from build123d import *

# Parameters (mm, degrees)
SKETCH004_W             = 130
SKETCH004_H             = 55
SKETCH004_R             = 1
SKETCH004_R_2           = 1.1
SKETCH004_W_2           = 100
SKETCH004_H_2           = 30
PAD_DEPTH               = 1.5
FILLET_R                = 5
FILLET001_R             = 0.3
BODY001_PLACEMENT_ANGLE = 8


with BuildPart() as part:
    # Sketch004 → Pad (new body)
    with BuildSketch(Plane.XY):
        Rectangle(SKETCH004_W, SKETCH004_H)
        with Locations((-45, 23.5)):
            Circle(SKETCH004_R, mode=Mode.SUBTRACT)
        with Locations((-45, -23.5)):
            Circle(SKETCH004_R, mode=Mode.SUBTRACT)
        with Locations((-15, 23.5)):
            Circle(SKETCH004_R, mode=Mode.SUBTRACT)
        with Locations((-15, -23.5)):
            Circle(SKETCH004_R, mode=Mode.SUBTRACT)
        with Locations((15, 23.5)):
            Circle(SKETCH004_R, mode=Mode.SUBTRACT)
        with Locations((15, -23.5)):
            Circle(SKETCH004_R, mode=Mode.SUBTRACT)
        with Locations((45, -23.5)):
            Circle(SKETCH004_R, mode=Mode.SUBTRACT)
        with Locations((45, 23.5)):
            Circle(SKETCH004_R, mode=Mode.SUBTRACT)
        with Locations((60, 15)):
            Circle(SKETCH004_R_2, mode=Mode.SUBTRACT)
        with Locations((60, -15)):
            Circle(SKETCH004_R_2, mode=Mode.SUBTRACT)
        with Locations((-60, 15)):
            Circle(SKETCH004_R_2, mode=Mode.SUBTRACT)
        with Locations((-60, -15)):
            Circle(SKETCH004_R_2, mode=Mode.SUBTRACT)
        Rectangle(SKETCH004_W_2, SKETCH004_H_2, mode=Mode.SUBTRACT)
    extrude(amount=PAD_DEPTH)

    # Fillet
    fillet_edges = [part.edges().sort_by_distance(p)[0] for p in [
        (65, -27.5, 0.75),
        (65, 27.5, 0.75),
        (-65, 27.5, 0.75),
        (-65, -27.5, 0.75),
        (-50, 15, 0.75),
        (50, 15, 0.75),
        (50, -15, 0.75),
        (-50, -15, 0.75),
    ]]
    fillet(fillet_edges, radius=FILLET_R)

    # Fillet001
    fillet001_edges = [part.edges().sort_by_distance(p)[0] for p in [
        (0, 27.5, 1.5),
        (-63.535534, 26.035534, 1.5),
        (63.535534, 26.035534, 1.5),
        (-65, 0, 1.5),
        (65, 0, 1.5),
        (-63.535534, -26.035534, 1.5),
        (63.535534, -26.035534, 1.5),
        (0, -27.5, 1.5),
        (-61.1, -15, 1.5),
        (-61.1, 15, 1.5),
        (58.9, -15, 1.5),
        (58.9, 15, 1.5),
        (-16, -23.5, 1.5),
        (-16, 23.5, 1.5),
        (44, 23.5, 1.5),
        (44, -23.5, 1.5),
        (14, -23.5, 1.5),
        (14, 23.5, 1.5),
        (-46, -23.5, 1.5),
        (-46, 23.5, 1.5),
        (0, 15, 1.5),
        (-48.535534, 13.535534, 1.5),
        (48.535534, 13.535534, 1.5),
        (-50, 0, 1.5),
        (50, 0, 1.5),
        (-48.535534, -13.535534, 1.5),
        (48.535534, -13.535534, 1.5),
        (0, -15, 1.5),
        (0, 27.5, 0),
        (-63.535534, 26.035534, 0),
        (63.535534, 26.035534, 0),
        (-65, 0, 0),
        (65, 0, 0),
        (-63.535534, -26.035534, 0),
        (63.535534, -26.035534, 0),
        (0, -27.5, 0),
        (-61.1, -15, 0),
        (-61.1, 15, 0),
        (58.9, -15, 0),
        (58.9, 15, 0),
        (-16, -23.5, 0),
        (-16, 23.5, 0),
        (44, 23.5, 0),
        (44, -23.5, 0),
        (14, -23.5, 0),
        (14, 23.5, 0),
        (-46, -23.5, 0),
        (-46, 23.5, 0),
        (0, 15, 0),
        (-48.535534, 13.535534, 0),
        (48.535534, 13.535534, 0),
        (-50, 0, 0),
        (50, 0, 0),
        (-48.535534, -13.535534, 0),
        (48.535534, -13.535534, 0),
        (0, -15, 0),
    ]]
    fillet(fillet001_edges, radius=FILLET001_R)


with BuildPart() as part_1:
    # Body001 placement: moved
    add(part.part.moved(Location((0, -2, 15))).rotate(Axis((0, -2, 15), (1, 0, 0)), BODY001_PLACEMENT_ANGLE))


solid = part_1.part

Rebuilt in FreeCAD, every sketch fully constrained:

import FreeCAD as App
import Part
import Sketcher
from FreeCAD import Vector
Q = App.Units.Quantity


def edges_at(feature, points):
    """Names of the edges that pass closest to the given points."""
    edges = feature.Shape.Edges
    near = lambda p: min(range(len(edges)), key=lambda i: edges[i].distToShape(Part.Vertex(*p))[0])
    return sorted({f"Edge{near(p) + 1}" for p in points})


def add_polygon(sketch, points):
    """Adds a closed chain of lines whose ends are joined by coincident constraints."""
    first, n = sketch.GeometryCount, len(points)
    for a, b in zip(points, points[1:] + points[:1]):
        sketch.addGeometry(Part.LineSegment(App.Vector(*a, 0), App.Vector(*b, 0)), False)
    for i in range(n):
        sketch.addConstraint(Sketcher.Constraint("Coincident", first + i, 2, first + (i + 1) % n, 1))

doc = App.newDocument("Part")
body = doc.addObject("PartDesign::Body", "Body")

# Sketch on XY plane
sketch1 = doc.addObject("Sketcher::SketchObject", "Sketch")
body.addObject(sketch1)
sketch1.AttachmentSupport = (doc.XY_Plane, [""])
sketch1.MapMode = "FlatFace"
add_polygon(sketch1, [(-65, 27.5), (-65, -27.5), (65, -27.5), (65, 27.5)])  # lines 0-3
sketch1.addGeometry(Part.Circle(Vector(-45, -23.5, 0), Vector(0, 0, 1), 1), False)  # 4
sketch1.addGeometry(Part.Circle(Vector(-60, -15, 0), Vector(0, 0, 1), 1.1), False)  # 5
sketch1.addGeometry(Part.Circle(Vector(-15, -23.5, 0), Vector(0, 0, 1), 1), False)  # 6
sketch1.addGeometry(Part.Circle(Vector(15, -23.5, 0), Vector(0, 0, 1), 1), False)  # 7
sketch1.addGeometry(Part.Circle(Vector(45, -23.5, 0), Vector(0, 0, 1), 1), False)  # 8
sketch1.addGeometry(Part.Circle(Vector(60, -15, 0), Vector(0, 0, 1), 1.1), False)  # 9
add_polygon(sketch1, [(50, -15), (-50, -15), (-50, 15), (50, 15)])  # lines 10-13
sketch1.addGeometry(Part.Circle(Vector(-60, 15, 0), Vector(0, 0, 1), 1.1), False)  # 14
sketch1.addGeometry(Part.Circle(Vector(-45, 23.5, 0), Vector(0, 0, 1), 1), False)  # 15
sketch1.addGeometry(Part.Circle(Vector(-15, 23.5, 0), Vector(0, 0, 1), 1), False)  # 16
sketch1.addGeometry(Part.Circle(Vector(15, 23.5, 0), Vector(0, 0, 1), 1), False)  # 17
sketch1.addGeometry(Part.Circle(Vector(60, 15, 0), Vector(0, 0, 1), 1.1), False)  # 18
sketch1.addGeometry(Part.Circle(Vector(45, 23.5, 0), Vector(0, 0, 1), 1), False)  # 19
sketch1.addConstraint([
    Sketcher.Constraint("Vertical", 0),
    Sketcher.Constraint("Horizontal", 1),
    Sketcher.Constraint("Vertical", 2),
    Sketcher.Constraint("Horizontal", 3),
    Sketcher.Constraint("Horizontal", 10),
    Sketcher.Constraint("Vertical", 11),
    Sketcher.Constraint("Horizontal", 12),
    Sketcher.Constraint("Vertical", 13),
    Sketcher.Constraint("Equal", 4, 6),
    Sketcher.Constraint("Equal", 6, 7),
    Sketcher.Constraint("Equal", 7, 8),
    Sketcher.Constraint("Equal", 5, 9),
    Sketcher.Constraint("Equal", 9, 14),
    Sketcher.Constraint("Equal", 8, 15),
    Sketcher.Constraint("Equal", 15, 16),
    Sketcher.Constraint("Equal", 16, 17),
    Sketcher.Constraint("Equal", 14, 18),
    Sketcher.Constraint("Equal", 17, 19),
    Sketcher.Constraint("Symmetric", 9, 3, 14, 3, -1, 1),
    Sketcher.Constraint("Symmetric", 8, 3, 15, 3, -1, 1),
    Sketcher.Constraint("Symmetric", 7, 3, 16, 3, -1, 1),
    Sketcher.Constraint("Symmetric", 6, 3, 17, 3, -1, 1),
    Sketcher.Constraint("Symmetric", 5, 3, 18, 3, -1, 1),
    Sketcher.Constraint("Symmetric", 4, 3, 19, 3, -1, 1),
    Sketcher.Constraint("Symmetric", 0, 2, 2, 2, -1, 1),
    Sketcher.Constraint("Symmetric", 10, 2, 12, 2, -1, 1),
    Sketcher.Constraint("Symmetric", 6, 3, 7, 3, -2),
    Sketcher.Constraint("Symmetric", 4, 3, 8, 3, -2),
    Sketcher.Constraint("Symmetric", 5, 3, 9, 3, -2),
    Sketcher.Constraint("Horizontal", 4, 3, 6, 3),
    Sketcher.Constraint("Horizontal", 9, 3, 10, 2),
    Sketcher.Constraint("Diameter", 4, Q("2 mm")),
    Sketcher.Constraint("Diameter", 5, Q("2.2 mm")),
    Sketcher.Constraint("DistanceX", 1, 1, 1, 2, Q("130 mm")),
    Sketcher.Constraint("DistanceX", 10, 2, 10, 1, Q("100 mm")),
    Sketcher.Constraint("DistanceY", 0, 2, 0, 1, Q("55 mm")),
    Sketcher.Constraint("DistanceY", 11, 1, 11, 2, Q("30 mm")),
    Sketcher.Constraint("DistanceX", 4, 3, -1, 1, Q("45 mm")),
    Sketcher.Constraint("DistanceX", 5, 3, -1, 1, Q("60 mm")),
    Sketcher.Constraint("DistanceX", 6, 3, -1, 1, Q("15 mm")),
    Sketcher.Constraint("DistanceY", 4, 3, 15, 3, Q("47 mm")),
])
pad1 = doc.addObject("PartDesign::Pad", "Pad")
body.addObject(pad1)
pad1.Profile = sketch1
pad1.Length = 1.5
doc.recompute()

fillet = doc.addObject("PartDesign::Fillet", "Fillet")
body.addObject(fillet)
fillet.Base = (pad1, edges_at(pad1, [
    (65, -27.5, 0.75),
    (65, 27.5, 0.75),
    (-65, 27.5, 0.75),
    (-65, -27.5, 0.75),
    (-50, 15, 0.75),
    (50, 15, 0.75),
    (50, -15, 0.75),
    (-50, -15, 0.75),
]))
fillet.Radius = 5
doc.recompute()

fillet2 = doc.addObject("PartDesign::Fillet", "Fillet001")
body.addObject(fillet2)
fillet2.Base = (fillet, edges_at(fillet, [
    (0, 27.5, 1.5),
    (-63.536, 26.036, 1.5),
    (63.536, 26.036, 1.5),
    (-65, 0, 1.5),
    (65, 0, 1.5),
    (-63.536, -26.036, 1.5),
    (63.536, -26.036, 1.5),
    (0, -27.5, 1.5),
    (-61.1, -15, 1.5),
    (-61.1, 15, 1.5),
    (58.9, -15, 1.5),
    (58.9, 15, 1.5),
    (-16, -23.5, 1.5),
    (-16, 23.5, 1.5),
    (44, 23.5, 1.5),
    (44, -23.5, 1.5),
    (14, -23.5, 1.5),
    (14, 23.5, 1.5),
    (-46, -23.5, 1.5),
    (-46, 23.5, 1.5),
    (0, 15, 1.5),
    (-48.536, 13.536, 1.5),
    (48.536, 13.536, 1.5),
    (-50, 0, 1.5),
    (50, 0, 1.5),
    (-48.536, -13.536, 1.5),
    (48.536, -13.536, 1.5),
    (0, -15, 1.5),
    (0, 27.5, 0),
    (-63.536, 26.036, 0),
    (63.536, 26.036, 0),
    (-65, 0, 0),
    (65, 0, 0),
    (-63.536, -26.036, 0),
    (63.536, -26.036, 0),
    (0, -27.5, 0),
    (-61.1, -15, 0),
    (-61.1, 15, 0),
    (58.9, -15, 0),
    (58.9, 15, 0),
    (-16, -23.5, 0),
    (-16, 23.5, 0),
    (44, 23.5, 0),
    (44, -23.5, 0),
    (14, -23.5, 0),
    (14, 23.5, 0),
    (-46, -23.5, 0),
    (-46, 23.5, 0),
    (0, 15, 0),
    (-48.536, 13.536, 0),
    (48.536, 13.536, 0),
    (-50, 0, 0),
    (50, 0, 0),
    (-48.536, -13.536, 0),
    (48.536, -13.536, 0),
    (0, -15, 0),
]))
fillet2.Radius = 0.3
body2 = doc.addObject("PartDesign::Body", "Body001")
doc.recompute()

body.Placement = App.Placement(Vector(0, -2, 15), App.Rotation(Vector(1, 0, 0), 8))
boolean = doc.addObject("PartDesign::Boolean", "Boolean")
body2.addObject(boolean)
boolean.Type = "Fuse"
boolean.addObjects([body])

doc.recompute()
